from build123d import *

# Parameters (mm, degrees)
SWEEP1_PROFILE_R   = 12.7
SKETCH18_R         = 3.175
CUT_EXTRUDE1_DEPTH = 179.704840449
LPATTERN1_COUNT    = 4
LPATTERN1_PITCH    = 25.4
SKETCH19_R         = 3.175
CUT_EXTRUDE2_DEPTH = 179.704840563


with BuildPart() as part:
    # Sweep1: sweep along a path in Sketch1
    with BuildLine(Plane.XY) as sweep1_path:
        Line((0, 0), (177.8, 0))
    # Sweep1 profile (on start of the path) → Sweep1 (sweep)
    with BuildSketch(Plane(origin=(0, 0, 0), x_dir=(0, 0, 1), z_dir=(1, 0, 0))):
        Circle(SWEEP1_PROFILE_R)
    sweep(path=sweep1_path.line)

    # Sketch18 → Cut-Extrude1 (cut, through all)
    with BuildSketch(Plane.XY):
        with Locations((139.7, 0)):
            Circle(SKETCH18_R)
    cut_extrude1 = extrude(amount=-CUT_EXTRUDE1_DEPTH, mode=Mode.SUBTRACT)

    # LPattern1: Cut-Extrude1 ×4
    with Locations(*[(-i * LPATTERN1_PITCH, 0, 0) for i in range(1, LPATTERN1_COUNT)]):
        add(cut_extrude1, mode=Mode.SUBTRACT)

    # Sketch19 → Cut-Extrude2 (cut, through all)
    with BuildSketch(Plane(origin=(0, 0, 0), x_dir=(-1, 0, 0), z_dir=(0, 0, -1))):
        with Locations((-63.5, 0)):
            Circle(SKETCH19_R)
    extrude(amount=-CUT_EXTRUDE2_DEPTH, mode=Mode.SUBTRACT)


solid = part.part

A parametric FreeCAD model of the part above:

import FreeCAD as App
import Part
import Sketcher

V = App.Vector
Q = App.Units.Quantity

doc = App.newDocument("Part")
params = doc.addObject("Spreadsheet::Sheet", "Params")
for row, (alias, value) in enumerate([
    ("sketch1_diameter", "1 in"),
    ("sketch2_width", "7 in"),
    ("sketch3_diameter", "0.25 in"),
    ("linearpattern_pitch", "1 in"),
    ("sketch4_diameter", "0.25 in"),
], start=1):
    params.set(f"A{row}", alias)
    params.set(f"B{row}", "=" + value)
    params.setAlias(f"B{row}", alias)

body = doc.addObject("PartDesign::Body", "Body")

# Sketch on YZ plane
sketch1 = body.newObject("Sketcher::SketchObject", "Sketch")
sketch1.AttachmentSupport = (doc.getObject("YZ_Plane"), [""])
sketch1.MapMode = "FlatFace"
sketch1.addGeometry(Part.Circle(V(0, 0, 0), V(0, 0, 1), 13), False)
sketch1.addConstraint(Sketcher.Constraint("Coincident", 0, 3, -1, 1))
sketch1.addConstraint(Sketcher.Constraint("Diameter", 0, Q("1 in")))
sketch1.setExpression("Constraints[1]", "Params.sketch1_diameter")

# Sketch on XY plane
sketch2 = body.newObject("Sketcher::SketchObject", "Sketch001")
sketch2.AttachmentSupport = (doc.getObject("XY_Plane"), [""])
sketch2.MapMode = "FlatFace"
sketch2.addGeometry(Part.LineSegment(V(0, 0, 0), V(178, 0, 0)), False)
sketch2.addConstraint(Sketcher.Constraint("Horizontal", 0))
sketch2.addConstraint(Sketcher.Constraint("Coincident", 0, 1, -1, 1))
sketch2.addConstraint(Sketcher.Constraint("DistanceX", 0, 1, 0, 2, Q("7 in")))
sketch2.setExpression("Constraints[2]", "Params.sketch2_width")
doc.recompute()

additivepipe = body.newObject("PartDesign::AdditivePipe", "AdditivePipe")
additivepipe.Profile = sketch1
additivepipe.Spine = (sketch2, ["Edge1"])

# Sketch on XY plane
sketch3 = body.newObject("Sketcher::SketchObject", "Sketch002")
sketch3.AttachmentSupport = (doc.getObject("XY_Plane"), [""])
sketch3.MapMode = "FlatFace"
sketch3.addGeometry(Part.Circle(V(139.7, 0, 0), V(0, 0, 1), 3.2), False)
sketch3.addConstraint(Sketcher.Constraint("PointOnObject", 0, 3, -1))
sketch3.addConstraint(Sketcher.Constraint("Diameter", 0, Q("0.25 in")))
sketch3.addConstraint(Sketcher.Constraint("DistanceX", -1, 1, 0, 3, Q("5.5 in")))
sketch3.setExpression("Constraints[1]", "Params.sketch3_diameter")
pocket1 = body.newObject("PartDesign::Pocket", "Pocket")
pocket1.Profile = sketch3
pocket1.Type = "ThroughAll"
doc.recompute()

linearpattern = body.newObject("PartDesign::LinearPattern", "LinearPattern")
linearpattern.Originals = [pocket1]
linearpattern.Direction = (doc.getObject("X_Axis"), [""])
linearpattern.Mode = "offset"
linearpattern.setExpression("Offset", "Params.linearpattern_pitch")
linearpattern.Occurrences = 4
linearpattern.Reversed = True
body.Tip = linearpattern

# Sketch on XY plane
sketch4 = body.newObject("Sketcher::SketchObject", "Sketch003")
sketch4.AttachmentSupport = (doc.getObject("XY_Plane"), [""])
sketch4.MapMode = "FlatFace"
sketch4.addGeometry(Part.Circle(V(63.5, 0, 0), V(0, 0, 1), 3.2), False)
sketch4.addConstraint(Sketcher.Constraint("PointOnObject", 0, 3, -1))
sketch4.addConstraint(Sketcher.Constraint("Diameter", 0, Q("0.25 in")))
sketch4.addConstraint(Sketcher.Constraint("DistanceX", -1, 1, 0, 3, Q("2.5 in")))
sketch4.setExpression("Constraints[1]", "Params.sketch4_diameter")
pocket2 = body.newObject("PartDesign::Pocket", "Pocket001")
pocket2.Profile = sketch4
pocket2.Type = "ThroughAll"
pocket2.Reversed = True

doc.recompute()
